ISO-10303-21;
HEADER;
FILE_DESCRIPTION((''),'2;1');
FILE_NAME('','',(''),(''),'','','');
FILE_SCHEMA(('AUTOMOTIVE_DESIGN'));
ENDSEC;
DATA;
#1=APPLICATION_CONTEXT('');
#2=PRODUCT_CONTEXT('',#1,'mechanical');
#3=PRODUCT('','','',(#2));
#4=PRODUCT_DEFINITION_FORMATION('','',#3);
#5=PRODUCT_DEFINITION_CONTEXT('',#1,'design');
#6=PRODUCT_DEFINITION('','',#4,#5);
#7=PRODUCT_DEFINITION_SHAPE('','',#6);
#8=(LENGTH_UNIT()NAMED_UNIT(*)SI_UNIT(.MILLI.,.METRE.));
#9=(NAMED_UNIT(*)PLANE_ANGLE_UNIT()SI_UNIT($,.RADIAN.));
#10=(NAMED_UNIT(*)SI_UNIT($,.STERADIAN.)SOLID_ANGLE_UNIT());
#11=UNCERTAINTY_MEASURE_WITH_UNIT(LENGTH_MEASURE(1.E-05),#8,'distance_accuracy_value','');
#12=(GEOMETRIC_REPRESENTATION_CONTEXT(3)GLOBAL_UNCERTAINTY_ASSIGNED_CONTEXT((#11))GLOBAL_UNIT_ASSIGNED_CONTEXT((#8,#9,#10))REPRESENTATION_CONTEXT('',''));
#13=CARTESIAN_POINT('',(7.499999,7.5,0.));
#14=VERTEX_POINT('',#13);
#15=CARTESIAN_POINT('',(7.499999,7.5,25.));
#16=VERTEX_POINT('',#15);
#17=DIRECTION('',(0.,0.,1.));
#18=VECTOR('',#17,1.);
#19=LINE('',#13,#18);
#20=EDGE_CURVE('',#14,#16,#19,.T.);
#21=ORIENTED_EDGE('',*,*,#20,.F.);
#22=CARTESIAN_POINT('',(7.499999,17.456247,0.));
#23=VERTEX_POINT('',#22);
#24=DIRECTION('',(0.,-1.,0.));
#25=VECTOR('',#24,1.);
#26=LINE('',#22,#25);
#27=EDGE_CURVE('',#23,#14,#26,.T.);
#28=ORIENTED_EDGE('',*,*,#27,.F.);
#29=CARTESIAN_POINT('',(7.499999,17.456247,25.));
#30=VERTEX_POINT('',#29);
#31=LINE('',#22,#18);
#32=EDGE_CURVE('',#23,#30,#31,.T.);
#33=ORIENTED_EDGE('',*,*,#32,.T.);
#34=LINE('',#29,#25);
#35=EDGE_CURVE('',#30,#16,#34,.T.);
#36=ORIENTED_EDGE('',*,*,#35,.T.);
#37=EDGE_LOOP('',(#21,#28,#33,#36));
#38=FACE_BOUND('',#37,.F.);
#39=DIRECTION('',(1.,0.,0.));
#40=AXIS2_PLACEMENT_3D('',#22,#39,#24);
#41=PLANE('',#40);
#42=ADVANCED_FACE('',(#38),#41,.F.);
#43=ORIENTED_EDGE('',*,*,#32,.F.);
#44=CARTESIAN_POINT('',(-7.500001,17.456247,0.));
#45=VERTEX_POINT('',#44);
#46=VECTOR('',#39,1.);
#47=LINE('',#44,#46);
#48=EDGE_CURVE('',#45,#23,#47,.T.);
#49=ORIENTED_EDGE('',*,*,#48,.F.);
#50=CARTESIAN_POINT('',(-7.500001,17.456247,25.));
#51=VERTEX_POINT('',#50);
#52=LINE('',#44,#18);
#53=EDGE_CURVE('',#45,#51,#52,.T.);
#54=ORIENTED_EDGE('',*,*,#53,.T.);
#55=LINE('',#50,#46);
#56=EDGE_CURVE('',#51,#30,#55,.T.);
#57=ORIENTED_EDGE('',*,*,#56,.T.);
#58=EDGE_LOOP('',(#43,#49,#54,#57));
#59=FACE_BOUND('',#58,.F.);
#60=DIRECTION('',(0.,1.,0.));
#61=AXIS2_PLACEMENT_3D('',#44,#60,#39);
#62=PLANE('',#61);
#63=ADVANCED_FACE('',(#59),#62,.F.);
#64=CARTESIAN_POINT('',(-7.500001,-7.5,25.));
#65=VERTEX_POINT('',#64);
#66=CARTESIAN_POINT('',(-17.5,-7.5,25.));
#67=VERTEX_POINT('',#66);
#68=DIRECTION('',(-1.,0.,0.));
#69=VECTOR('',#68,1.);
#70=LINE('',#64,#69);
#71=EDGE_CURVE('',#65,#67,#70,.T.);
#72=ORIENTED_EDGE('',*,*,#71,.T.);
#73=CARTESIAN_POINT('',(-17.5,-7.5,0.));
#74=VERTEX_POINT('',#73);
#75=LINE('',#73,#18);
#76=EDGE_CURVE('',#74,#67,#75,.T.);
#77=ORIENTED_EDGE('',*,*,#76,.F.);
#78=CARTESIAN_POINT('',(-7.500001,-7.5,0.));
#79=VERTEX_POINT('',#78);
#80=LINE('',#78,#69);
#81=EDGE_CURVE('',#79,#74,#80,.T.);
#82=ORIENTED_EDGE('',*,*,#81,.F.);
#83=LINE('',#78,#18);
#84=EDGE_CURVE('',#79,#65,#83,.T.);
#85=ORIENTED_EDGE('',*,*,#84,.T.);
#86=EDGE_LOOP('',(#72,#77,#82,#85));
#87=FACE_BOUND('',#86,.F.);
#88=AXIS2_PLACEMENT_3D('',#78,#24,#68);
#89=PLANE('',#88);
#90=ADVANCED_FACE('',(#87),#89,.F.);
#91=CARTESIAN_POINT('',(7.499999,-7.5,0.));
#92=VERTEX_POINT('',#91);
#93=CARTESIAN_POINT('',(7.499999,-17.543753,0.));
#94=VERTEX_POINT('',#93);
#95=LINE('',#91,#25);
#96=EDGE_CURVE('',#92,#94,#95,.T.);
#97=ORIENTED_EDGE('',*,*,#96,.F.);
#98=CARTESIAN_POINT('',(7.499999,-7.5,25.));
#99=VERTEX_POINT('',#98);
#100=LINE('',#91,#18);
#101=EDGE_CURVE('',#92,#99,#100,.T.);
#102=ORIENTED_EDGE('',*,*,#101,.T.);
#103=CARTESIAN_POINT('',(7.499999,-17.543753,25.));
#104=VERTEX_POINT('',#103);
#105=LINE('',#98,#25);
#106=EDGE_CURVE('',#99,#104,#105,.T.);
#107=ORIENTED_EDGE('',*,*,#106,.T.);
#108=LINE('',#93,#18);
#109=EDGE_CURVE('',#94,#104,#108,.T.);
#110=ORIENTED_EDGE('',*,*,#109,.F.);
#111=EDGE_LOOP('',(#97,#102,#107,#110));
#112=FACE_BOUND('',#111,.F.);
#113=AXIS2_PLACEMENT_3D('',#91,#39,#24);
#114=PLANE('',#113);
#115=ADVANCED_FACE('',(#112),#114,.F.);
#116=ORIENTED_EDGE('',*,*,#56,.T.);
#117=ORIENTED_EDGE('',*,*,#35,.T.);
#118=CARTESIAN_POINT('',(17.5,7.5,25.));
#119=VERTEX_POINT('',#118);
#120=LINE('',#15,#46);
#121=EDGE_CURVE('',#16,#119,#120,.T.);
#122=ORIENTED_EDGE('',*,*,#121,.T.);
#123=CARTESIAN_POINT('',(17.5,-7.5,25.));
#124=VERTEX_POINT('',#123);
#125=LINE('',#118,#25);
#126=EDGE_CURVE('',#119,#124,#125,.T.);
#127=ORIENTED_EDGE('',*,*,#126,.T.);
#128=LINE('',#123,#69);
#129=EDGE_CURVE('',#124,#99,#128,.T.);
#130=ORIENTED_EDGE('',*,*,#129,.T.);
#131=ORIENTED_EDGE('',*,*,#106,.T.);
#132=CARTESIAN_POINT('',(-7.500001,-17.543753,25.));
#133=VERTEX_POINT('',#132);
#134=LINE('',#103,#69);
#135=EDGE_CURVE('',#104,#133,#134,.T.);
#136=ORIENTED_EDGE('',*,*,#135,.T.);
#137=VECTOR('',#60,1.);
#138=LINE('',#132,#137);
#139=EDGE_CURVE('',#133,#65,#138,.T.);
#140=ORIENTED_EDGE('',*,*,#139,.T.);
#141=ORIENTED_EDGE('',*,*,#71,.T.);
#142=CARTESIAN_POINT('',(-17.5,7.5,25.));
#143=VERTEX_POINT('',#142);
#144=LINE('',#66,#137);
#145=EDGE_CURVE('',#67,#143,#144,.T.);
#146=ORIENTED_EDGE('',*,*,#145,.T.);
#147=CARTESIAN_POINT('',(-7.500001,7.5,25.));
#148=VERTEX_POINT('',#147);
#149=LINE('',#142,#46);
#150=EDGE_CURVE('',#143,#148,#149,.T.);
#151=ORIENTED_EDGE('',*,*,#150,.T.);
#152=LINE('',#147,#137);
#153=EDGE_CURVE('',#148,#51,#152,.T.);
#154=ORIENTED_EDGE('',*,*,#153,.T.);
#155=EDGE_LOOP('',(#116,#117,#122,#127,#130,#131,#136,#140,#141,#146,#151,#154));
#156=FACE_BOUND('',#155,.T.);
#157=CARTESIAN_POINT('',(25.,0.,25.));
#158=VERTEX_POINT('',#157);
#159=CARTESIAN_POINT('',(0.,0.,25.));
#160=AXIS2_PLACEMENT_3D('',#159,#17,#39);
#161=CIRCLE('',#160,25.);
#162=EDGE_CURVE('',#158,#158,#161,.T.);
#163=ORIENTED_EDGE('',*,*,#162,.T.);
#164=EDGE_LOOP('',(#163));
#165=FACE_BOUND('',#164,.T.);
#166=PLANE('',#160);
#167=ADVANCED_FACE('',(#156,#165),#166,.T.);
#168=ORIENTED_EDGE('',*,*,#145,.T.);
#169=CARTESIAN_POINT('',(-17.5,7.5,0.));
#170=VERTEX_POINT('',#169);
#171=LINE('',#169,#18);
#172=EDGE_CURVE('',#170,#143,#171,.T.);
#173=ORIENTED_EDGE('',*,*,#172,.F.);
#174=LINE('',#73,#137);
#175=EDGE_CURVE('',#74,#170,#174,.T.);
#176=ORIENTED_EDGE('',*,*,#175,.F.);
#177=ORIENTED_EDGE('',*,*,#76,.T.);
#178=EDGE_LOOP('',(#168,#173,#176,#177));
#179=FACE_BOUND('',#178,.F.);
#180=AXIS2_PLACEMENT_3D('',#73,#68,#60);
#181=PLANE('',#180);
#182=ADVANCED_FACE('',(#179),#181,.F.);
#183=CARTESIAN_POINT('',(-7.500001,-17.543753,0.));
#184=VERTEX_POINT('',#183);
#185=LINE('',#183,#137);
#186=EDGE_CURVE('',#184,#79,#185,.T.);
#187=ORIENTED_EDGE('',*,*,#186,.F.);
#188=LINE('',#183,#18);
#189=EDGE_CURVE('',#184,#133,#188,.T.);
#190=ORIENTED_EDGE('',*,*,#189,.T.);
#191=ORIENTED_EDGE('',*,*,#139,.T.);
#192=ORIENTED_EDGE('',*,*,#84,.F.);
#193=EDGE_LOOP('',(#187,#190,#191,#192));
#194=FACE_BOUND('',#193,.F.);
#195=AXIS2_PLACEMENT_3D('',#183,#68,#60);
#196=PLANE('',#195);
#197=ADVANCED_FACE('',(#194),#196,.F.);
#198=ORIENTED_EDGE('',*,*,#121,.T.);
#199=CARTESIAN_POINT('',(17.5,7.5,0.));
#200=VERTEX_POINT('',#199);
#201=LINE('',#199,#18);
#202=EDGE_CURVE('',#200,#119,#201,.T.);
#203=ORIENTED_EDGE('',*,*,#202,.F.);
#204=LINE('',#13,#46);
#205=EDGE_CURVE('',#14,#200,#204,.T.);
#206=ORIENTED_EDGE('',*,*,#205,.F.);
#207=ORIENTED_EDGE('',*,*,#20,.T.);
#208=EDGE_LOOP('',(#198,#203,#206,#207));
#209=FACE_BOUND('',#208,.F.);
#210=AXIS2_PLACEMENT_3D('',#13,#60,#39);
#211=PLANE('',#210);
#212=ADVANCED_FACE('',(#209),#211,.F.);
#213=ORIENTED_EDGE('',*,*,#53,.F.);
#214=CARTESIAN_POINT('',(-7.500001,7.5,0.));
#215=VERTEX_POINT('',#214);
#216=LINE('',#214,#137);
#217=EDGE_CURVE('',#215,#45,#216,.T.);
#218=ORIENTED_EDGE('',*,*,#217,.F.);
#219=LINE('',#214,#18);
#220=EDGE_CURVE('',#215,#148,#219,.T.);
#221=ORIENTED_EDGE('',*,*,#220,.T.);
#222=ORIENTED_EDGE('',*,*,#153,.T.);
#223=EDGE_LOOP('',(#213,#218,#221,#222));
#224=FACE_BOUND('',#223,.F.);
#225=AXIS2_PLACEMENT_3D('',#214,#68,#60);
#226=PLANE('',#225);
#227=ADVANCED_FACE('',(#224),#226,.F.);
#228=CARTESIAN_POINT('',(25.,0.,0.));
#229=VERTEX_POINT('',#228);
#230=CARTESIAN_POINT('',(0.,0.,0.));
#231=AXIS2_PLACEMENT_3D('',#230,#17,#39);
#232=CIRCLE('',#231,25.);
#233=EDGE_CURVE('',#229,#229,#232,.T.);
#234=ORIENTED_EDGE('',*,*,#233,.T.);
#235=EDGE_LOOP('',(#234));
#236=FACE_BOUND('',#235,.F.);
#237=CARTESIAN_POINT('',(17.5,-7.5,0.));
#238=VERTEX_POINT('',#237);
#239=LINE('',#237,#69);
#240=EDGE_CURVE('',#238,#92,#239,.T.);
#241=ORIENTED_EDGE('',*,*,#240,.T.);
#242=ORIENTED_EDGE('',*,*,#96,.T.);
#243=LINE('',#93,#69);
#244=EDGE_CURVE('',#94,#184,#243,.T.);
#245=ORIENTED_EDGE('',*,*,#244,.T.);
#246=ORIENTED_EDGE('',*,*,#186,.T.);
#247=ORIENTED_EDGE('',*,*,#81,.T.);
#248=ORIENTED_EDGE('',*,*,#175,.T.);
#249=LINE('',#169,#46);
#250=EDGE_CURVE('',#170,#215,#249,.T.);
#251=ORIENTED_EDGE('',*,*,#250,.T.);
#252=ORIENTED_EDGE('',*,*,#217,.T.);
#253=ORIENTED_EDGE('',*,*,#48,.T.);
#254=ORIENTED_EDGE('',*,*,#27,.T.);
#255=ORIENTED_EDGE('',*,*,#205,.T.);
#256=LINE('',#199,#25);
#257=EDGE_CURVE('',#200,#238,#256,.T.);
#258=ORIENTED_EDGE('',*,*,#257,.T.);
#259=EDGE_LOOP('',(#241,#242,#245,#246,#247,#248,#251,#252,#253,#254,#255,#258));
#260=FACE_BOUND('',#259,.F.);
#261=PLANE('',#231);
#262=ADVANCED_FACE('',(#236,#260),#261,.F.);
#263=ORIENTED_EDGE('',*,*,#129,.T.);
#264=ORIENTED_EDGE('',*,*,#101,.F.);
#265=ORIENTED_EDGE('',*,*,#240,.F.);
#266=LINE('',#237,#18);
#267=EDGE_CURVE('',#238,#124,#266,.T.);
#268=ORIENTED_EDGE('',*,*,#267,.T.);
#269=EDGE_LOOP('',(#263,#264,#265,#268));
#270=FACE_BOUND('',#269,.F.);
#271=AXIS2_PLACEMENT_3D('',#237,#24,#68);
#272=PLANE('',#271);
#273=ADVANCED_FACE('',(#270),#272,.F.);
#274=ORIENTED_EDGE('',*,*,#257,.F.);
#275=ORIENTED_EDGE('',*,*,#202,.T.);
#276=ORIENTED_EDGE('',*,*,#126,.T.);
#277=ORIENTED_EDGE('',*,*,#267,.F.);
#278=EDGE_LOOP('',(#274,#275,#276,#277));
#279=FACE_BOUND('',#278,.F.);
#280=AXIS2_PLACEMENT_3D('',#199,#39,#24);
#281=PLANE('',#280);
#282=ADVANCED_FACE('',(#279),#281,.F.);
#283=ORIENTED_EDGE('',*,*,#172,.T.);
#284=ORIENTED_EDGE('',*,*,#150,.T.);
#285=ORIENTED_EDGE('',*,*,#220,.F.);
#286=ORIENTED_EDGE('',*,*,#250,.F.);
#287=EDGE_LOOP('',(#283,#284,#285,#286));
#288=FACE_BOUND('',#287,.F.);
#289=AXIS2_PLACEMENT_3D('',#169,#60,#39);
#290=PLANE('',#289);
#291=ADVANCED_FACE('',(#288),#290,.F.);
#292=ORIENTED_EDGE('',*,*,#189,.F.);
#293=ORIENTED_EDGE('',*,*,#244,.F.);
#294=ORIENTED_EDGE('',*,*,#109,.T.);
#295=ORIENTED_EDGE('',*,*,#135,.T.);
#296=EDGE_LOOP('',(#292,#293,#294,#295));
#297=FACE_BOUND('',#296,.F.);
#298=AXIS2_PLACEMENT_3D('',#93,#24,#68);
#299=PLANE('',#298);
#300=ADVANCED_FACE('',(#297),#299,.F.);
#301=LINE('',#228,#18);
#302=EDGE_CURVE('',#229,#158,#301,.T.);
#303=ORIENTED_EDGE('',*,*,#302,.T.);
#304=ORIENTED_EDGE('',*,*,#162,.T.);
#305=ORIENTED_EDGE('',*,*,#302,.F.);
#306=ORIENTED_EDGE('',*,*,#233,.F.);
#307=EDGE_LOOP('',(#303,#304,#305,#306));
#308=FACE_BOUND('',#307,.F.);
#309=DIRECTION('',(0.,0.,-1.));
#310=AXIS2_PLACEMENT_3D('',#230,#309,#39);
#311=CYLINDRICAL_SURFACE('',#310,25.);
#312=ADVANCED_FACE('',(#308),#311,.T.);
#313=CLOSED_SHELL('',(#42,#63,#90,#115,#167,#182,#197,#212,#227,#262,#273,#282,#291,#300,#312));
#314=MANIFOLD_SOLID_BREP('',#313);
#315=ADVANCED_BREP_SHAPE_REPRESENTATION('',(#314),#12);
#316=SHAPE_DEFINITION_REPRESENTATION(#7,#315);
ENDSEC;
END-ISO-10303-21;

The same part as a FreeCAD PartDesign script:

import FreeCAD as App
import Part
import Sketcher
from FreeCAD import Vector

doc = App.newDocument("Part")
body = doc.addObject("PartDesign::Body", "Body")

sketch1 = doc.addObject("Sketcher::SketchObject", "Sketch")
body.addObject(sketch1)
sketch1.AttachmentSupport = (doc.XY_Plane, [""])
sketch1.MapMode = "FlatFace"
sketch1.addGeometry(Part.Circle(Vector(0, 0, 0), Vector(0, 0, 1), 25), False)
sketch1.addGeometry(Part.LineSegment(Vector(7.499999, 7.5, 0), Vector(17.5, 7.5, 0)), False)
sketch1.addGeometry(Part.LineSegment(Vector(17.5, 7.5, 0), Vector(17.5, -7.5, 0)), False)
sketch1.addGeometry(Part.LineSegment(Vector(17.5, -7.5, 0), Vector(7.499999, -7.5, 0)), False)
sketch1.addGeometry(Part.LineSegment(Vector(7.499999, -7.5, 0), Vector(7.499999, -17.543753, 0)), False)
sketch1.addGeometry(Part.LineSegment(Vector(7.499999, -17.543753, 0), Vector(-7.500001, -17.543753, 0)), False)
sketch1.addGeometry(Part.LineSegment(Vector(-7.500001, -17.543753, 0), Vector(-7.500001, -7.5, 0)), False)
sketch1.addGeometry(Part.LineSegment(Vector(-7.500001, -7.5, 0), Vector(-17.5, -7.5, 0)), False)
sketch1.addGeometry(Part.LineSegment(Vector(-17.5, -7.5, 0), Vector(-17.5, 7.5, 0)), False)
sketch1.addGeometry(Part.LineSegment(Vector(-17.5, 7.5, 0), Vector(-7.500001, 7.5, 0)), False)
sketch1.addGeometry(Part.LineSegment(Vector(-7.500001, 7.5, 0), Vector(-7.500001, 17.456247, 0)), False)
sketch1.addGeometry(Part.LineSegment(Vector(-7.500001, 17.456247, 0), Vector(7.499999, 17.456247, 0)), False)
sketch1.addGeometry(Part.LineSegment(Vector(7.499999, 17.456247, 0), Vector(7.499999, 7.5, 0)), False)
sketch1.addConstraint(Sketcher.Constraint("Coincident", 1, 2, 2, 1))
sketch1.addConstraint(Sketcher.Constraint("Coincident", 2, 2, 3, 1))
sketch1.addConstraint(Sketcher.Constraint("Coincident", 3, 2, 4, 1))
sketch1.addConstraint(Sketcher.Constraint("Coincident", 4, 2, 5, 1))
sketch1.addConstraint(Sketcher.Constraint("Coincident", 5, 2, 6, 1))
sketch1.addConstraint(Sketcher.Constraint("Coincident", 6, 2, 7, 1))
sketch1.addConstraint(Sketcher.Constraint("Coincident", 7, 2, 8, 1))
sketch1.addConstraint(Sketcher.Constraint("Coincident", 8, 2, 9, 1))
sketch1.addConstraint(Sketcher.Constraint("Coincident", 9, 2, 10, 1))
sketch1.addConstraint(Sketcher.Constraint("Coincident", 10, 2, 11, 1))
sketch1.addConstraint(Sketcher.Constraint("Coincident", 11, 2, 12, 1))
sketch1.addConstraint(Sketcher.Constraint("Coincident", 12, 2, 1, 1))
sketch1.addConstraint(Sketcher.Constraint("Horizontal", 1))
sketch1.addConstraint(Sketcher.Constraint("Vertical", 2))
sketch1.addConstraint(Sketcher.Constraint("Horizontal", 3))
sketch1.addConstraint(Sketcher.Constraint("Vertical", 4))
sketch1.addConstraint(Sketcher.Constraint("Horizontal", 5))
sketch1.addConstraint(Sketcher.Constraint("Vertical", 6))
sketch1.addConstraint(Sketcher.Constraint("Horizontal", 7))
sketch1.addConstraint(Sketcher.Constraint("Vertical", 8))
sketch1.addConstraint(Sketcher.Constraint("Horizontal", 9))
sketch1.addConstraint(Sketcher.Constraint("Vertical", 10))
sketch1.addConstraint(Sketcher.Constraint("Horizontal", 11))
sketch1.addConstraint(Sketcher.Constraint("Vertical", 12))
sketch1.addConstraint(Sketcher.Constraint("Coincident", 0, 3, -1, 1))
sketch1.addConstraint(Sketcher.Constraint("Symmetric", 1, 2, 7, 2, -1, 1))
sketch1.addConstraint(Sketcher.Constraint("Symmetric", 3, 2, 9, 2, -1, 1))
sketch1.addConstraint(Sketcher.Constraint("Symmetric", 3, 2, 6, 2, -2))
sketch1.addConstraint(Sketcher.Constraint("Vertical", 4, 2, 11, 2))
sketch1.addConstraint(Sketcher.Constraint("Equal", 11, 2))
sketch1.addConstraint(Sketcher.Constraint("Diameter", 0, 50.0))
sketch1.addConstraint(Sketcher.Constraint("DistanceX", 1, 1, 1, 2, 10.000001))
sketch1.addConstraint(Sketcher.Constraint("DistanceX", 5, 2, 5, 1, 15.0))
sketch1.addConstraint(Sketcher.Constraint("DistanceY", 4, 2, 4, 1, 10.043753))
sketch1.addConstraint(Sketcher.Constraint("DistanceY", 10, 1, 10, 2, 9.956247))
pad1 = doc.addObject("PartDesign::Pad", "Pad")
body.addObject(pad1)
pad1.Profile = sketch1
pad1.Length = 25

doc.recompute()
